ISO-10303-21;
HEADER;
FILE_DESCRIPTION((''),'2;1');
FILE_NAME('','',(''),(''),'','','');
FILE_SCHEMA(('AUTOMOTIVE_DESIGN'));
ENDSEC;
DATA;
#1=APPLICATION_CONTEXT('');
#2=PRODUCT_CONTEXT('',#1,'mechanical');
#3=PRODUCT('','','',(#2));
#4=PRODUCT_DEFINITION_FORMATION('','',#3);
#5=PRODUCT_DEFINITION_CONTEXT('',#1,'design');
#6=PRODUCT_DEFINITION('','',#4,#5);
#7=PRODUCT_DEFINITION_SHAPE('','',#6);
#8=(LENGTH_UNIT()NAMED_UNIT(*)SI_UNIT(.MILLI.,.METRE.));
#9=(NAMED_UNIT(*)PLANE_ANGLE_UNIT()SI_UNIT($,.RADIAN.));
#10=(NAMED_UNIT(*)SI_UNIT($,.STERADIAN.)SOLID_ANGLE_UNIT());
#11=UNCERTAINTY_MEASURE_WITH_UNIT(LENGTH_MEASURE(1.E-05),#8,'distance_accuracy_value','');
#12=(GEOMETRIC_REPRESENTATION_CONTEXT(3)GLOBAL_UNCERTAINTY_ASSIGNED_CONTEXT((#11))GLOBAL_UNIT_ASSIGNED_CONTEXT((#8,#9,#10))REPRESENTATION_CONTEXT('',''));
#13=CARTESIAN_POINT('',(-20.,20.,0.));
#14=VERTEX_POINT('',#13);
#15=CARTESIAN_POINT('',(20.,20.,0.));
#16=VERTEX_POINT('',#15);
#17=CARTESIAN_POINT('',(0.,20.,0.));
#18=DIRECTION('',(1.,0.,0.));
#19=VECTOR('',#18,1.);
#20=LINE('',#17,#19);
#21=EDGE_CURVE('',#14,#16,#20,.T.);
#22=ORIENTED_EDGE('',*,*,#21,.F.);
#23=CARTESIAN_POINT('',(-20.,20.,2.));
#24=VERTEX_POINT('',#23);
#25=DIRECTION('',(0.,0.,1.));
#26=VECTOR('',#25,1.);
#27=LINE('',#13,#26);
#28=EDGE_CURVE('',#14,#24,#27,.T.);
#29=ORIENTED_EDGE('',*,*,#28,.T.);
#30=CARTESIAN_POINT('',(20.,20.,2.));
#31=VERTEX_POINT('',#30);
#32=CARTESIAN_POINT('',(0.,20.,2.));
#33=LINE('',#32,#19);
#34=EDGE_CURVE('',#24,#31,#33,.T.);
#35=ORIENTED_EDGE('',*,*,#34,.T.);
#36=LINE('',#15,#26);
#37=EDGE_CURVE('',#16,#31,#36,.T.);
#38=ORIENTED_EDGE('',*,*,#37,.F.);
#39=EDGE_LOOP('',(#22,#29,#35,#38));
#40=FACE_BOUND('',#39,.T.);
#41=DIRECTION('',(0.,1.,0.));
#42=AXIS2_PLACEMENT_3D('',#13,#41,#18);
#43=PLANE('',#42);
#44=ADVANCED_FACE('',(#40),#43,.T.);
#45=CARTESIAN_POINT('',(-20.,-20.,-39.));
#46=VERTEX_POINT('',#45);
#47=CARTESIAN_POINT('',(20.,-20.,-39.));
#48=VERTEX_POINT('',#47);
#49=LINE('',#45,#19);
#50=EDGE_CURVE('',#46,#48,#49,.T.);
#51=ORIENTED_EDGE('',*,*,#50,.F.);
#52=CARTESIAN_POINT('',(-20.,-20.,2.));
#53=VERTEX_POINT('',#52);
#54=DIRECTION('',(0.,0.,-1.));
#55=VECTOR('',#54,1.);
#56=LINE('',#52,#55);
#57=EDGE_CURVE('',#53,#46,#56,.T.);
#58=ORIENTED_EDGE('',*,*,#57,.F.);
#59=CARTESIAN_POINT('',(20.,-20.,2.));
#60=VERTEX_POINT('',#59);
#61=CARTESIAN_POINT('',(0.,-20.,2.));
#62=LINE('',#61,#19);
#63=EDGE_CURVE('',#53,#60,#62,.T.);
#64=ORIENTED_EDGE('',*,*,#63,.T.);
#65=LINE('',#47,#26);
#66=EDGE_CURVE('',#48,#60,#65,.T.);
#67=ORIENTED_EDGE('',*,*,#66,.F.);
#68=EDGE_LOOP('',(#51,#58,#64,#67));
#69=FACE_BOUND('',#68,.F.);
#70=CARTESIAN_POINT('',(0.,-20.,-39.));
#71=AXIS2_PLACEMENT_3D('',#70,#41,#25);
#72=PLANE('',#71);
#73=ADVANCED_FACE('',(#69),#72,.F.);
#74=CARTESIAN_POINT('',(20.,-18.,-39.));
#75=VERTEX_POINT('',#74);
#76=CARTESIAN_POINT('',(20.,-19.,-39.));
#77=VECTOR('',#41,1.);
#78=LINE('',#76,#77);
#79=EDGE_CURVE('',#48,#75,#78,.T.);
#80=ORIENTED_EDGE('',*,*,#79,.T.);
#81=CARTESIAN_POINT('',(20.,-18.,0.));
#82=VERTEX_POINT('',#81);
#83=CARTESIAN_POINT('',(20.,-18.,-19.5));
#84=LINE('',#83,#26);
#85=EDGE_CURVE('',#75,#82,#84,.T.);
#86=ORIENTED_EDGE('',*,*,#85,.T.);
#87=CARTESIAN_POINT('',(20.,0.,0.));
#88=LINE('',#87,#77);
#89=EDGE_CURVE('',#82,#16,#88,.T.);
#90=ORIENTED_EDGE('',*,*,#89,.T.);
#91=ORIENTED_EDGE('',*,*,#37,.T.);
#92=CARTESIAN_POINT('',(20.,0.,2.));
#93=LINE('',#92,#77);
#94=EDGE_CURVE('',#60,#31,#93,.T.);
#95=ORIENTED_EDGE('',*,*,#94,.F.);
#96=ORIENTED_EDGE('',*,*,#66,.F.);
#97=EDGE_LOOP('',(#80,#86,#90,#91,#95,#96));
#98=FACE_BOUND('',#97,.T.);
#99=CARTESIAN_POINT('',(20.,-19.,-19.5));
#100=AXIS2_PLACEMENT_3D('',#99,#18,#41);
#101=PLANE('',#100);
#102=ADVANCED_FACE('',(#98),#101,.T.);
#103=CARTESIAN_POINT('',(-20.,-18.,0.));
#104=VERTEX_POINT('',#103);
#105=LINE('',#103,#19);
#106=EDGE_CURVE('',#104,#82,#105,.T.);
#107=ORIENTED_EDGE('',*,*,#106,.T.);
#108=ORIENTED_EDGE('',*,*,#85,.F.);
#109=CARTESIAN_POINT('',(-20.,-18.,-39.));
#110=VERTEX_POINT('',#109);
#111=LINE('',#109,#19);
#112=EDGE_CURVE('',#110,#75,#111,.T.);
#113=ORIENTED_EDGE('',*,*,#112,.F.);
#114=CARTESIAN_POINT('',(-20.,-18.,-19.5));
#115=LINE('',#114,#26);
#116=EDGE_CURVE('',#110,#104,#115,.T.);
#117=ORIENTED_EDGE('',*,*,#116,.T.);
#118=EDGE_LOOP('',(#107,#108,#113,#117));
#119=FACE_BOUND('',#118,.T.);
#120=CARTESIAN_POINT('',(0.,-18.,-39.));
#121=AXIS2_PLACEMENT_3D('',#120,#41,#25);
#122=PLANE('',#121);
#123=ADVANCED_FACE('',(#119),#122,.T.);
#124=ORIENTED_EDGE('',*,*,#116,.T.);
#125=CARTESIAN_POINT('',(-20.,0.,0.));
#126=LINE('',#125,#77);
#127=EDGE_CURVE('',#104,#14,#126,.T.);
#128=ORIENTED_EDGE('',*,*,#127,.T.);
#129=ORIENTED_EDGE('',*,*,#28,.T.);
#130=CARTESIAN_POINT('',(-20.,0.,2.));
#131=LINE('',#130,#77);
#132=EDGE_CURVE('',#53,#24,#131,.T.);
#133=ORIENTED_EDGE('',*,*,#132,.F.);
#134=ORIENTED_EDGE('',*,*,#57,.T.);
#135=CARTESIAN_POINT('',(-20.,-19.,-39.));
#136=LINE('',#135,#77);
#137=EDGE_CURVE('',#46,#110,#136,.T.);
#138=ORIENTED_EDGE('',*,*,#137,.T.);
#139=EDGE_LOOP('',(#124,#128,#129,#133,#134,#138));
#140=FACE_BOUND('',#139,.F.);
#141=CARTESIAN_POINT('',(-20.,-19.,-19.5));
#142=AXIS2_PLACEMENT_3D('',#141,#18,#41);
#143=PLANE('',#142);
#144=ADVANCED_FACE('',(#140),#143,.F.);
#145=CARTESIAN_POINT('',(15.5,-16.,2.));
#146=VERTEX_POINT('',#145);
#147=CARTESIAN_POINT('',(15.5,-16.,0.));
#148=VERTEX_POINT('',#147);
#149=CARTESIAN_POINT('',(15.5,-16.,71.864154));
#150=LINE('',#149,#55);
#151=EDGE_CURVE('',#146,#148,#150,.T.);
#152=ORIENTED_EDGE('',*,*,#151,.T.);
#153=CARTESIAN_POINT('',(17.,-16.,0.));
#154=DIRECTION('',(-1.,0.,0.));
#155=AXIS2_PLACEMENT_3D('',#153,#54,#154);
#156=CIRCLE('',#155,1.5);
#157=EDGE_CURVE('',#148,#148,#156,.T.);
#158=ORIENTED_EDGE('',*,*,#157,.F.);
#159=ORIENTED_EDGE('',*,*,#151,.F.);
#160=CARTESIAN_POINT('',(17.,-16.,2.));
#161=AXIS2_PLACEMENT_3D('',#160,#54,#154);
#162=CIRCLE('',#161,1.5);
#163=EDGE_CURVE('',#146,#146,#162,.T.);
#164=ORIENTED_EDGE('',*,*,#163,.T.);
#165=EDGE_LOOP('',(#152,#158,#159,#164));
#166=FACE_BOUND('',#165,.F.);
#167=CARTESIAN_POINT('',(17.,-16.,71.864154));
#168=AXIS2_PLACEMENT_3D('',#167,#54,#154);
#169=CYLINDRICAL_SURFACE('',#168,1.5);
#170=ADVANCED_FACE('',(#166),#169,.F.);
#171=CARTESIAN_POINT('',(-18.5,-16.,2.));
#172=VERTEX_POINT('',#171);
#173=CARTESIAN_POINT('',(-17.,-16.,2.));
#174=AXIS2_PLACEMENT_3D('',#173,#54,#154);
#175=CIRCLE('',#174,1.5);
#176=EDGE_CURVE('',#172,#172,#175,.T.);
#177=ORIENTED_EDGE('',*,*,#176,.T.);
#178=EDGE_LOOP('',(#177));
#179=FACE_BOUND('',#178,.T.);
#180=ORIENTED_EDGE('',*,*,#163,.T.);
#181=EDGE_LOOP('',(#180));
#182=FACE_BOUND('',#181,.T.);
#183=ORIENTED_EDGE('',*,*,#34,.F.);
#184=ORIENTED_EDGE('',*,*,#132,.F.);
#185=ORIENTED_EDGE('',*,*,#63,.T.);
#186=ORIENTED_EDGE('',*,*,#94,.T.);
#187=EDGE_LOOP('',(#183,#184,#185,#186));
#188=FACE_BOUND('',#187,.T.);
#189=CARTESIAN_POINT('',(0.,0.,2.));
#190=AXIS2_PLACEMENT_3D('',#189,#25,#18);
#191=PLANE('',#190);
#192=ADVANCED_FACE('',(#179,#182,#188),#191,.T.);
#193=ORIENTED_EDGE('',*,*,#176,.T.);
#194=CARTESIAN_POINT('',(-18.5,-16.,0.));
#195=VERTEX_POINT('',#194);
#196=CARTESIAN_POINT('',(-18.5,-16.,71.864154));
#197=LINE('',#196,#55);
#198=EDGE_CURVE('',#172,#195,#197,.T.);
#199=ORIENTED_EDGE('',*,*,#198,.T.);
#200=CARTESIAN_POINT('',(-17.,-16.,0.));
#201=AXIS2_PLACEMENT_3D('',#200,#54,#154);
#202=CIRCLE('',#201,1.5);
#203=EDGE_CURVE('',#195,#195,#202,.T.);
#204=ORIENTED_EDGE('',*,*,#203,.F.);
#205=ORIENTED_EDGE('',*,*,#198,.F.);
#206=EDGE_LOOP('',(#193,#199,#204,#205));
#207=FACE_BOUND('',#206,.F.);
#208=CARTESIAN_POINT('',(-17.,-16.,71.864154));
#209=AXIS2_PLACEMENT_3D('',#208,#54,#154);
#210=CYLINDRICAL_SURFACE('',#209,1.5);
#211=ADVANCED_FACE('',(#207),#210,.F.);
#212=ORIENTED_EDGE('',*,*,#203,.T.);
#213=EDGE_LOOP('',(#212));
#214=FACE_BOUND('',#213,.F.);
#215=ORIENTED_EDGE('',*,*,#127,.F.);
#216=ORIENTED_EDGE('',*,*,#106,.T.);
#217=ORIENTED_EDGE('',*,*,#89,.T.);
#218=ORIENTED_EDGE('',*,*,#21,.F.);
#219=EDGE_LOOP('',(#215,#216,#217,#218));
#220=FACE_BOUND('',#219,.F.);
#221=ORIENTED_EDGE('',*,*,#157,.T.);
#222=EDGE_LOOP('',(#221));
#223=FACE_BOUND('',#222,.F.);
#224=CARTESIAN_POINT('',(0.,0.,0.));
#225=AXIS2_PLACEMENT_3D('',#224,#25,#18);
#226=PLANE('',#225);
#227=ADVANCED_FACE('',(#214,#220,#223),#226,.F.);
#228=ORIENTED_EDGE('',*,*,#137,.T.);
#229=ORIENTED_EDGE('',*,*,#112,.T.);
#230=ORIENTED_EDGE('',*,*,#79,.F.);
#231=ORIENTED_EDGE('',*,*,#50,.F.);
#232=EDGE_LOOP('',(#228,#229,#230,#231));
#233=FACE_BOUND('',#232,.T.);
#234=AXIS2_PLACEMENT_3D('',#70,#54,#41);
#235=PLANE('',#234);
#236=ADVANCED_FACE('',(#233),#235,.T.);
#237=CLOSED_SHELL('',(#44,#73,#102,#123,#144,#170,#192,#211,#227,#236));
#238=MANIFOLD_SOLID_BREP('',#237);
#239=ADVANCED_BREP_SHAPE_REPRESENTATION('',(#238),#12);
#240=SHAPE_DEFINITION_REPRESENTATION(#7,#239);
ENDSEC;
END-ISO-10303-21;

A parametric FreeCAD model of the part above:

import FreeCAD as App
import Part
import Sketcher
from FreeCAD import Vector
Q = App.Units.Quantity

doc = App.newDocument("Part")
body = doc.addObject("PartDesign::Body", "Body")

# Sketch on XY plane
sketch1 = body.newObject("Sketcher::SketchObject", "Sketch")
sketch1.AttachmentSupport = (doc.getObject("XY_Plane"), [""])
sketch1.MapMode = "FlatFace"
sketch1.addGeometry([
    Part.LineSegment(Vector(-20, 20, 0), Vector(-20, -20, 0)),
    Part.LineSegment(Vector(-20, -20, 0), Vector(20, -20, 0)),
    Part.LineSegment(Vector(20, -20, 0), Vector(20, 20, 0)),
    Part.LineSegment(Vector(20, 20, 0), Vector(-20, 20, 0)),
], False)
sketch1.addConstraint([
    Sketcher.Constraint("Coincident", 0, 2, 1, 1),
    Sketcher.Constraint("Coincident", 1, 2, 2, 1),
    Sketcher.Constraint("Coincident", 2, 2, 3, 1),
    Sketcher.Constraint("Coincident", 3, 2, 0, 1),
    Sketcher.Constraint("Vertical", 0),
    Sketcher.Constraint("Horizontal", 1),
    Sketcher.Constraint("Vertical", 2),
    Sketcher.Constraint("Horizontal", 3),
    Sketcher.Constraint("Symmetric", 0, 2, 2, 2, -1, 1),
    Sketcher.Constraint("Equal", 3, 0),
    Sketcher.Constraint("DistanceX", 1, 1, 1, 2, Q("40 mm")),
])
pad1 = body.newObject("PartDesign::Pad", "Pad")
pad1.Profile = sketch1
pad1.Length = 2

# Sketch on YZ plane
sketch2 = body.newObject("Sketcher::SketchObject", "Sketch001")
sketch2.AttachmentSupport = (doc.getObject("YZ_Plane"), [""])
sketch2.MapMode = "FlatFace"
sketch2.addGeometry([
    Part.LineSegment(Vector(-20, 0, 0), Vector(-20, -39, 0)),
    Part.LineSegment(Vector(-20, -39, 0), Vector(-18, -39, 0)),
    Part.LineSegment(Vector(-18, -39, 0), Vector(-18, 0, 0)),
    Part.LineSegment(Vector(-18, 0, 0), Vector(-20, 0, 0)),
], False)
sketch2.addConstraint([
    Sketcher.Constraint("Coincident", 0, 2, 1, 1),
    Sketcher.Constraint("Coincident", 1, 2, 2, 1),
    Sketcher.Constraint("Coincident", 2, 2, 3, 1),
    Sketcher.Constraint("Coincident", 3, 2, 0, 1),
    Sketcher.Constraint("Vertical", 0),
    Sketcher.Constraint("Horizontal", 1),
    Sketcher.Constraint("Vertical", 2),
    Sketcher.Constraint("Horizontal", 3),
    Sketcher.Constraint("PointOnObject", 2, 2, -1),
    Sketcher.Constraint("DistanceX", 1, 1, 1, 2, Q("2 mm")),
    Sketcher.Constraint("DistanceY", 0, 2, 0, 1, Q("39 mm")),
    Sketcher.Constraint("DistanceX", 0, 2, -1, 1, Q("20 mm")),
])
pad2 = body.newObject("PartDesign::Pad", "Pad001")
pad2.Profile = sketch2
pad2.Type = "TwoLengths"
pad2.Length = 20
pad2.Length2 = 20

# Sketch on XY plane
sketch3 = body.newObject("Sketcher::SketchObject", "Sketch002")
sketch3.AttachmentSupport = (doc.getObject("XY_Plane"), [""])
sketch3.MapMode = "FlatFace"
sketch3.AttachmentOffset = App.Placement(Vector(0, 0, 2), App.Rotation())
sketch3.addGeometry([
    Part.Circle(Vector(-17, -16, 0), Vector(0, 0, 1), 1.5),
    Part.Circle(Vector(17, -16, 0), Vector(0, 0, 1), 1.5),
], False)
sketch3.addConstraint([
    Sketcher.Constraint("Equal", 0, 1),
    Sketcher.Constraint("Symmetric", 0, 3, 1, 3, -2),
    Sketcher.Constraint("Diameter", 0, Q("3 mm")),
    Sketcher.Constraint("DistanceX", 0, 3, -1, 1, Q("17 mm")),
    Sketcher.Constraint("DistanceY", 0, 3, -1, 1, Q("16 mm")),
])
doc.recompute()
hole = body.newObject("PartDesign::Hole", "Hole")
hole.Profile = sketch3
hole.ThreadType = "None"
hole.Diameter = 3
hole.DepthType = "ThroughAll"

doc.recompute()
